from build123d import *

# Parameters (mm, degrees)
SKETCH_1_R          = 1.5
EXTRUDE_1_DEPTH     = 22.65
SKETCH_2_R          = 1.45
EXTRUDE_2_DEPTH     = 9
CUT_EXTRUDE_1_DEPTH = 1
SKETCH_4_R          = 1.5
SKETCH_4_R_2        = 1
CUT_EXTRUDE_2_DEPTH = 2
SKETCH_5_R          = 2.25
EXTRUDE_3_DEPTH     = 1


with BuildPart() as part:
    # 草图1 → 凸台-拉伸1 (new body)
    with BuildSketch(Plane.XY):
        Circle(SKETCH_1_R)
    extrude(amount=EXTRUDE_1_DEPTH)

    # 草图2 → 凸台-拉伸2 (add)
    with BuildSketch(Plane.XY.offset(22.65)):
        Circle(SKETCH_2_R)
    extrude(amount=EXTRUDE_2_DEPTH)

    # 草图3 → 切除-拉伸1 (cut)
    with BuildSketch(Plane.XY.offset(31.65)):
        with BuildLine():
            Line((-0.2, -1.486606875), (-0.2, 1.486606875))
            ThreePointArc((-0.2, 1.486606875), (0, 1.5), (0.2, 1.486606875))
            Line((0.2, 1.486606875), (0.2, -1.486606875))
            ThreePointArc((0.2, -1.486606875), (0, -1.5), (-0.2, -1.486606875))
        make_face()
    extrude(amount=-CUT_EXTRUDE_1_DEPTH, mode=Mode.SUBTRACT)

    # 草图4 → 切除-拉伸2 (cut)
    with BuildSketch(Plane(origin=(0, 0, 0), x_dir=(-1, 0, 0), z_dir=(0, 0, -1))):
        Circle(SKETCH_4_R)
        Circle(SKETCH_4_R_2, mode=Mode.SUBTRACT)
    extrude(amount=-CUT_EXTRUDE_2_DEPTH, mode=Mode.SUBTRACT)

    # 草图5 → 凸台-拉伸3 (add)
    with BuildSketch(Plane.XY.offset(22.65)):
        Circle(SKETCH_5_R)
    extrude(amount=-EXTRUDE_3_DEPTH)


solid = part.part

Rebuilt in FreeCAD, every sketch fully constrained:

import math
import FreeCAD as App
import Part
import Sketcher

doc = App.newDocument("Part")
body = doc.addObject("PartDesign::Body", "Body")

# Sketch on XY plane
sketch1 = body.newObject("Sketcher::SketchObject", "Sketch")
sketch1.AttachmentSupport = (doc.getObject("XY_Plane"), [""])
sketch1.MapMode = "FlatFace"
sketch1.addGeometry(Part.Circle(App.Vector(0, 0, 0), App.Vector(0, 0, 1), 1.5), False)
sketch1.addConstraint([
    Sketcher.Constraint("Coincident", 0, 3, -1, 1),
    Sketcher.Constraint("Diameter", 0, 3.0),
])
pad1 = body.newObject("PartDesign::Pad", "Pad")
pad1.Profile = sketch1
pad1.Length = 22.65

# Sketch on XY plane
sketch2 = body.newObject("Sketcher::SketchObject", "Sketch001")
sketch2.AttachmentSupport = (doc.getObject("XY_Plane"), [""])
sketch2.MapMode = "FlatFace"
sketch2.AttachmentOffset = App.Placement(App.Vector(0, 0, 22.65), App.Rotation())
sketch2.addGeometry(Part.Circle(App.Vector(0, 0, 0), App.Vector(0, 0, 1), 1.4), False)
sketch2.addConstraint([
    Sketcher.Constraint("Coincident", 0, 3, -1, 1),
    Sketcher.Constraint("Diameter", 0, 2.9),
])
pad2 = body.newObject("PartDesign::Pad", "Pad001")
pad2.Profile = sketch2
pad2.Length = 9

# Sketch on XY plane
sketch3 = body.newObject("Sketcher::SketchObject", "Sketch002")
sketch3.AttachmentSupport = (doc.getObject("XY_Plane"), [""])
sketch3.MapMode = "FlatFace"
sketch3.AttachmentOffset = App.Placement(App.Vector(0, 0, 31.65), App.Rotation())
sketch3.addGeometry([
    Part.LineSegment(App.Vector(-0.2, 1.49, 0), App.Vector(-0.2, -1.49, 0)),
    Part.ArcOfCircle(Part.Circle(App.Vector(0, 0, 0), App.Vector(0, 0, 1), 1.5), math.radians(-97.66), math.radians(-82.34)),
    Part.LineSegment(App.Vector(0.2, -1.49, 0), App.Vector(0.2, 1.49, 0)),
    Part.ArcOfCircle(Part.Circle(App.Vector(0, 0, 0), App.Vector(0, 0, 1), 1.5), math.radians(82.34), math.radians(97.66)),
], False)
sketch3.addConstraint([
    Sketcher.Constraint("Coincident", 0, 2, 1, 1),
    Sketcher.Constraint("Coincident", 1, 2, 2, 1),
    Sketcher.Constraint("Coincident", 2, 2, 3, 1),
    Sketcher.Constraint("Coincident", 3, 2, 0, 1),
    Sketcher.Constraint("Vertical", 0),
    Sketcher.Constraint("Vertical", 2),
    Sketcher.Constraint("Coincident", 1, 3, -1, 1),
    Sketcher.Constraint("Coincident", 3, 3, -1, 1),
    Sketcher.Constraint("Equal", 1, 3),
    Sketcher.Constraint("Horizontal", 0, 2, 1, 2),
    Sketcher.Constraint("Radius", 1, 1.5),
    Sketcher.Constraint("DistanceX", 0, 2, -1, 1, 0.2),
])
pocket1 = body.newObject("PartDesign::Pocket", "Pocket")
pocket1.Profile = sketch3
pocket1.Length = 1

# Sketch on XY plane
sketch4 = body.newObject("Sketcher::SketchObject", "Sketch003")
sketch4.AttachmentSupport = (doc.getObject("XY_Plane"), [""])
sketch4.MapMode = "FlatFace"
sketch4.addGeometry([
    Part.Circle(App.Vector(0, 0, 0), App.Vector(0, 0, 1), 1.5),
    Part.Circle(App.Vector(0, 0, 0), App.Vector(0, 0, 1), 1),
], False)
sketch4.addConstraint([
    Sketcher.Constraint("Coincident", 0, 3, -1, 1),
    Sketcher.Constraint("Coincident", 1, 3, -1, 1),
    Sketcher.Constraint("Diameter", 0, 3.0),
    Sketcher.Constraint("Diameter", 1, 2.0),
])
pocket2 = body.newObject("PartDesign::Pocket", "Pocket001")
pocket2.Profile = sketch4
pocket2.Length = 2
pocket2.Reversed = True

# Sketch on XY plane
sketch5 = body.newObject("Sketcher::SketchObject", "Sketch004")
sketch5.AttachmentSupport = (doc.getObject("XY_Plane"), [""])
sketch5.MapMode = "FlatFace"
sketch5.AttachmentOffset = App.Placement(App.Vector(0, 0, 22.65), App.Rotation())
sketch5.addGeometry(Part.Circle(App.Vector(0, 0, 0), App.Vector(0, 0, 1), 2.2), False)
sketch5.addConstraint([
    Sketcher.Constraint("Coincident", 0, 3, -1, 1),
    Sketcher.Constraint("Diameter", 0, 4.5),
])
pad3 = body.newObject("PartDesign::Pad", "Pad002")
pad3.Profile = sketch5
pad3.Length = 1
pad3.Reversed = True

doc.recompute()
